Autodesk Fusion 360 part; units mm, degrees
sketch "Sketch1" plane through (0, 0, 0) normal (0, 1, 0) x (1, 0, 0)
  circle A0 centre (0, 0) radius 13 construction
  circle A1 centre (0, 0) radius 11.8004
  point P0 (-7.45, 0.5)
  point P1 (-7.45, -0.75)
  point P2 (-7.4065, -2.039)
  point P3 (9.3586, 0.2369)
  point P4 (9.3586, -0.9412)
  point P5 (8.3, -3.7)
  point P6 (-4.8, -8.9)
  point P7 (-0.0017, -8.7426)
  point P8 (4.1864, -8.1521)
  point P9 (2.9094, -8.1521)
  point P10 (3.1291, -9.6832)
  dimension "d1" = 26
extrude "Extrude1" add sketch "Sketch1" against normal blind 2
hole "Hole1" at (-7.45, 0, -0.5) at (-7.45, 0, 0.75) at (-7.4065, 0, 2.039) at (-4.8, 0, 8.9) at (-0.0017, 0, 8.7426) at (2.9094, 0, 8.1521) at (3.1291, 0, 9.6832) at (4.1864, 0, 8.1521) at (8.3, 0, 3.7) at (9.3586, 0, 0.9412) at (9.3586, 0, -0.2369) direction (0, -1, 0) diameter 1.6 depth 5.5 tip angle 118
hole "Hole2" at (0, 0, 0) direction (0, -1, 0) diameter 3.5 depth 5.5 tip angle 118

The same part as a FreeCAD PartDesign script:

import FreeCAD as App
import Part
import Sketcher

V = App.Vector

doc = App.newDocument("Part")
body = doc.addObject("PartDesign::Body", "Body")

sketch1 = body.newObject("Sketcher::SketchObject", "Sketch")
sketch1.AttachmentSupport = (doc.getObject("XZ_Plane"), [""])
sketch1.MapMode = "FlatFace"
sketch1.addGeometry(Part.Circle(V(0, 0, 0), V(0, 0, 1), 12), False)
sketch1.addConstraint(Sketcher.Constraint("Coincident", 0, 3, -1, 1))
sketch1.addConstraint(Sketcher.Constraint("Diameter", 0, 23.6008))
pad1 = body.newObject("PartDesign::Pad", "Pad")
pad1.Profile = sketch1
pad1.Length = 2

sketch2 = body.newObject("Sketcher::SketchObject", "Sketch001")
sketch2.AttachmentSupport = (doc.getObject("XZ_Plane"), [""])
sketch2.MapMode = "FlatFace"
sketch2.addGeometry(Part.Circle(V(-7.5, -0.5, 0), V(0, 0, 1), 0.8), False)
sketch2.addGeometry(Part.Circle(V(-7.5, 0.8, 0), V(0, 0, 1), 0.8), False)
sketch2.addGeometry(Part.Circle(V(-7.4, 2, 0), V(0, 0, 1), 0.8), False)
sketch2.addGeometry(Part.Circle(V(-4.8, 8.9, 0), V(0, 0, 1), 0.8), False)
sketch2.addGeometry(Part.Circle(V(0, 8.7, 0), V(0, 0, 1), 0.8), False)
sketch2.addGeometry(Part.Circle(V(2.9, 8.2, 0), V(0, 0, 1), 0.8), False)
sketch2.addGeometry(Part.Circle(V(3.1, 9.7, 0), V(0, 0, 1), 0.8), False)
sketch2.addGeometry(Part.Circle(V(4.2, 8.2, 0), V(0, 0, 1), 0.8), False)
sketch2.addGeometry(Part.Circle(V(8.3, 3.7, 0), V(0, 0, 1), 0.8), False)
sketch2.addGeometry(Part.Circle(V(9.4, 0.9, 0), V(0, 0, 1), 0.8), False)
sketch2.addGeometry(Part.Circle(V(9.4, -0.2, 0), V(0, 0, 1), 0.8), False)
sketch2.addConstraint(Sketcher.Constraint("Equal", 0, 1))
sketch2.addConstraint(Sketcher.Constraint("Equal", 1, 2))
sketch2.addConstraint(Sketcher.Constraint("Equal", 2, 3))
sketch2.addConstraint(Sketcher.Constraint("Equal", 3, 4))
sketch2.addConstraint(Sketcher.Constraint("Equal", 4, 5))
sketch2.addConstraint(Sketcher.Constraint("Equal", 5, 6))
sketch2.addConstraint(Sketcher.Constraint("Equal", 6, 7))
sketch2.addConstraint(Sketcher.Constraint("Equal", 7, 8))
sketch2.addConstraint(Sketcher.Constraint("Equal", 8, 9))
sketch2.addConstraint(Sketcher.Constraint("Equal", 9, 10))
sketch2.addConstraint(Sketcher.Constraint("Horizontal", 5, 3, 7, 3))
sketch2.addConstraint(Sketcher.Constraint("Vertical", 0, 3, 1, 3))
sketch2.addConstraint(Sketcher.Constraint("Vertical", 9, 3, 10, 3))
sketch2.addConstraint(Sketcher.Constraint("Diameter", 0, 1.6))
sketch2.addConstraint(Sketcher.Constraint("DistanceY", 0, 3, -1, 1, 0.5))
sketch2.addConstraint(Sketcher.Constraint("DistanceX", 3, 3, -1, 1, 4.8))
sketch2.addConstraint(Sketcher.Constraint("DistanceY", -1, 1, 3, 3, 8.9))
sketch2.addConstraint(Sketcher.Constraint("DistanceX", -1, 1, 8, 3, 8.3))
sketch2.addConstraint(Sketcher.Constraint("DistanceY", -1, 1, 8, 3, 3.7))
sketch2.addConstraint(Sketcher.Constraint("DistanceX", 0, 3, -1, 1, 7.45))
sketch2.addConstraint(Sketcher.Constraint("DistanceY", -1, 1, 1, 3, 0.75))
sketch2.addConstraint(Sketcher.Constraint("DistanceY", 10, 3, 6, 3, 9.92))
sketch2.addConstraint(Sketcher.Constraint("DistanceY", -1, 1, 2, 3, 2.039))
sketch2.addConstraint(Sketcher.Constraint("DistanceY", -1, 1, 5, 3, 8.152))
sketch2.addConstraint(Sketcher.Constraint("DistanceX", -1, 1, 6, 3, 3.129))
sketch2.addConstraint(Sketcher.Constraint("DistanceY", 10, 3, -1, 1, 0.237))
sketch2.addConstraint(Sketcher.Constraint("DistanceX", 4, 3, 5, 3, 2.911))
sketch2.addConstraint(Sketcher.Constraint("DistanceX", 2, 3, 5, 3, 10.316))
sketch2.addConstraint(Sketcher.Constraint("DistanceX", 5, 3, 7, 3, 1.277))
sketch2.addConstraint(Sketcher.Constraint("DistanceY", 9, 3, 7, 3, 7.211))
sketch2.addConstraint(Sketcher.Constraint("DistanceX", 2, 3, -1, 1, 7.4065))
sketch2.addConstraint(Sketcher.Constraint("DistanceY", -1, 1, 4, 3, 8.7426))
sketch2.addConstraint(Sketcher.Constraint("DistanceX", -1, 1, 9, 3, 9.3586))
doc.recompute()
hole = body.newObject("PartDesign::Hole", "Hole")
hole.Profile = sketch2
hole.ThreadType = "None"
hole.Diameter = 1.6
hole.DepthType = "Dimension"
hole.Depth = 5.5
hole.DrillPoint = "Angled"
hole.DrillPointAngle = 118
hole.Reversed = True

sketch3 = body.newObject("Sketcher::SketchObject", "Sketch002")
sketch3.AttachmentSupport = (doc.getObject("XZ_Plane"), [""])
sketch3.MapMode = "FlatFace"
sketch3.addGeometry(Part.Circle(V(0, 0, 0), V(0, 0, 1), 1.8), False)
sketch3.addConstraint(Sketcher.Constraint("Coincident", 0, 3, -1, 1))
sketch3.addConstraint(Sketcher.Constraint("Diameter", 0, 3.5))
doc.recompute()
hole2 = body.newObject("PartDesign::Hole", "Hole001")
hole2.Profile = sketch3
hole2.ThreadType = "None"
hole2.Diameter = 3.5
hole2.DepthType = "Dimension"
hole2.Depth = 5.5
hole2.DrillPoint = "Angled"
hole2.DrillPointAngle = 118
hole2.Reversed = True

doc.recompute()
